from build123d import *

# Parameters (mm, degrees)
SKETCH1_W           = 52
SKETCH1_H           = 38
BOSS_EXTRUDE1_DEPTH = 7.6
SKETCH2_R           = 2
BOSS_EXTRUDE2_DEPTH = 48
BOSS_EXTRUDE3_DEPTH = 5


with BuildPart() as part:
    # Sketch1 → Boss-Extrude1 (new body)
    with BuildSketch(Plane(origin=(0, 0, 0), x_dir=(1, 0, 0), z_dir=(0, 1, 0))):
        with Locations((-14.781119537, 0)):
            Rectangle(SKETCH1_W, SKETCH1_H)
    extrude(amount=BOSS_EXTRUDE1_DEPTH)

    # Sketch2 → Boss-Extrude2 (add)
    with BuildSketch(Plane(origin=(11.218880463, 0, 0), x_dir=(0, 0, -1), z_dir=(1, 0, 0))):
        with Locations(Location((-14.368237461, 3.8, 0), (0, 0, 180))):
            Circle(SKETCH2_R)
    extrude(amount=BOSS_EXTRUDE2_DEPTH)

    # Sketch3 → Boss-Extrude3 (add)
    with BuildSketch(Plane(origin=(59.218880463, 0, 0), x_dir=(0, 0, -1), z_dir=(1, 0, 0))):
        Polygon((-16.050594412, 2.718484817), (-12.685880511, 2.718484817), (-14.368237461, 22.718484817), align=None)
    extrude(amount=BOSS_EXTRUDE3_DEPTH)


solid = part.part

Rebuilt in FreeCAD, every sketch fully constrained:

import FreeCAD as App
import Part
import Sketcher
Q = App.Units.Quantity

doc = App.newDocument("Part")
body = doc.addObject("PartDesign::Body", "Body")

# Sketch on XZ plane
sketch1 = body.newObject("Sketcher::SketchObject", "Sketch")
sketch1.AttachmentSupport = (doc.getObject("XZ_Plane"), [""])
sketch1.MapMode = "FlatFace"
sketch1.addGeometry([
    Part.LineSegment(App.Vector(-41, -19, 0), App.Vector(-41, 19, 0)),
    Part.LineSegment(App.Vector(-41, 19, 0), App.Vector(11, 19, 0)),
    Part.LineSegment(App.Vector(11, 19, 0), App.Vector(11, -19, 0)),
    Part.LineSegment(App.Vector(11, -19, 0), App.Vector(-41, -19, 0)),
], False)
sketch1.addConstraint([
    Sketcher.Constraint("Coincident", 0, 2, 1, 1),
    Sketcher.Constraint("Coincident", 1, 2, 2, 1),
    Sketcher.Constraint("Coincident", 2, 2, 3, 1),
    Sketcher.Constraint("Coincident", 3, 2, 0, 1),
    Sketcher.Constraint("Vertical", 0),
    Sketcher.Constraint("Horizontal", 1),
    Sketcher.Constraint("Vertical", 2),
    Sketcher.Constraint("Horizontal", 3),
    Sketcher.Constraint("DistanceX", 1, 1, 1, 2, Q("52 mm")),
    Sketcher.Constraint("DistanceY", 0, 1, 0, 2, Q("38 mm")),
    Sketcher.Constraint("DistanceY", -1, 1, 0, 2, Q("19 mm")),
    Sketcher.Constraint("DistanceX", 0, 2, -1, 1, Q("40.78112 mm")),
])
pad1 = body.newObject("PartDesign::Pad", "Pad")
pad1.Profile = sketch1
pad1.Length = 7.6
pad1.Reversed = True

# Sketch on YZ plane
sketch2 = body.newObject("Sketcher::SketchObject", "Sketch001")
sketch2.AttachmentSupport = (doc.getObject("YZ_Plane"), [""])
sketch2.MapMode = "FlatFace"
sketch2.AttachmentOffset = App.Placement(App.Vector(0, 0, 11.21888), App.Rotation())
sketch2.addGeometry(Part.Circle(App.Vector(3.8, 14.4, 0), App.Vector(0, 0, 1), 2), False)
sketch2.addConstraint([
    Sketcher.Constraint("Diameter", 0, Q("4 mm")),
    Sketcher.Constraint("DistanceX", -1, 1, 0, 3, Q("3.8 mm")),
    Sketcher.Constraint("DistanceY", -1, 1, 0, 3, Q("14.368237 mm")),
])
pad2 = body.newObject("PartDesign::Pad", "Pad001")
pad2.Profile = sketch2
pad2.Length = 48

# Sketch on YZ plane
sketch3 = body.newObject("Sketcher::SketchObject", "Sketch002")
sketch3.AttachmentSupport = (doc.getObject("YZ_Plane"), [""])
sketch3.MapMode = "FlatFace"
sketch3.AttachmentOffset = App.Placement(App.Vector(0, 0, 59.21888), App.Rotation())
sketch3.addGeometry([
    Part.LineSegment(App.Vector(2.7, 16.1, 0), App.Vector(2.7, 12.7, 0)),
    Part.LineSegment(App.Vector(2.7, 12.7, 0), App.Vector(22.7, 14.4, 0)),
    Part.LineSegment(App.Vector(22.7, 14.4, 0), App.Vector(2.7, 16.1, 0)),
], False)
sketch3.addConstraint([
    Sketcher.Constraint("Coincident", 0, 2, 1, 1),
    Sketcher.Constraint("Coincident", 1, 2, 2, 1),
    Sketcher.Constraint("Coincident", 2, 2, 0, 1),
    Sketcher.Constraint("Vertical", 0),
    Sketcher.Constraint("Equal", 1, 2),
    Sketcher.Constraint("DistanceX", 0, 2, 1, 2, Q("20 mm")),
    Sketcher.Constraint("DistanceY", 0, 2, 0, 1, Q("3.364714 mm")),
    Sketcher.Constraint("DistanceY", -1, 1, 0, 2, Q("12.685881 mm")),
    Sketcher.Constraint("DistanceX", -1, 1, 0, 2, Q("2.718485 mm")),
])
pad3 = body.newObject("PartDesign::Pad", "Pad002")
pad3.Profile = sketch3
pad3.Length = 5

doc.recompute()
